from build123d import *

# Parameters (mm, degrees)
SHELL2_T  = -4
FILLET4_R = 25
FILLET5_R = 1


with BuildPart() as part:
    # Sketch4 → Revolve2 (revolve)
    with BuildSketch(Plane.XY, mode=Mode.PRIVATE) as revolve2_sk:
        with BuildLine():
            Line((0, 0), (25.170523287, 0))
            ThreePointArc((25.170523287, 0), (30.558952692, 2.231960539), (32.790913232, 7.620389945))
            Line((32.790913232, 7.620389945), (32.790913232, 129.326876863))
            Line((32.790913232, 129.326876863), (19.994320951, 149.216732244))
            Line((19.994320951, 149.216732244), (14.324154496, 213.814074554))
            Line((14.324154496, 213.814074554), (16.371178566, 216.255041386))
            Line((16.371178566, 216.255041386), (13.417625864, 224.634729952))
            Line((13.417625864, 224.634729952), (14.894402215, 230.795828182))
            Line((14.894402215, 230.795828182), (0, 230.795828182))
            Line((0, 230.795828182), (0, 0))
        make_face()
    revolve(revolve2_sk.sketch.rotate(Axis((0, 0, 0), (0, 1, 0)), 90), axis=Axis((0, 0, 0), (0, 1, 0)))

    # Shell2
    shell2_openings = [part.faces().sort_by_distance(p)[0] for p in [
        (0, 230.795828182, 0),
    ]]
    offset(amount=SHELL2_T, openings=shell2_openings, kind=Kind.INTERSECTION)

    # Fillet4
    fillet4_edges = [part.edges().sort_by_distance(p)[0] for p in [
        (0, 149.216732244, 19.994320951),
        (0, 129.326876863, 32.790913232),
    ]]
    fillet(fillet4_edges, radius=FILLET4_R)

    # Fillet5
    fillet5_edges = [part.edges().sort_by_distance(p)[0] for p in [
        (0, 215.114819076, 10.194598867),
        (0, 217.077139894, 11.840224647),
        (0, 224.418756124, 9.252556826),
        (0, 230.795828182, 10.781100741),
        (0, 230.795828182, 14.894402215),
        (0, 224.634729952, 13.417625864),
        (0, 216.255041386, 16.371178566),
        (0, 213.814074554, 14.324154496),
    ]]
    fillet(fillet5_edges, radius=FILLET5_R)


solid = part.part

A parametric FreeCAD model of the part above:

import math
import FreeCAD as App
import Part
import Sketcher
from FreeCAD import Vector
Q = App.Units.Quantity


def edges_at(feature, points):
    """Names of the edges that pass closest to the given points."""
    edges = feature.Shape.Edges
    near = lambda p: min(range(len(edges)), key=lambda i: edges[i].distToShape(Part.Vertex(*p))[0])
    return sorted({f"Edge{near(p) + 1}" for p in points})


def faces_at(feature, points):
    """Names of the faces that lie closest to the given points."""
    faces = feature.Shape.Faces
    near = lambda p: min(range(len(faces)), key=lambda i: faces[i].distToShape(Part.Vertex(*p))[0])
    return sorted({f"Face{near(p) + 1}" for p in points})

doc = App.newDocument("Part")
params = doc.addObject("Spreadsheet::Sheet", "Params")
for row, (alias, value) in enumerate([
    ("revolution_angle", "360 deg"),
    ("thickness_wall", "4 mm"),
    ("fillet_radius", "25 mm"),
    ("fillet2_radius", "1 mm"),
], start=1):
    params.set(f"A{row}", alias)
    params.set(f"B{row}", "=" + value)
    params.setAlias(f"B{row}", alias)

body = doc.addObject("PartDesign::Body", "Body")

sketch1 = doc.addObject("Sketcher::SketchObject", "Sketch")
body.addObject(sketch1)
sketch1.AttachmentSupport = (doc.XY_Plane, [""])
sketch1.MapMode = "FlatFace"
sketch1.addGeometry([
    Part.LineSegment(Vector(0, 0, 0), Vector(25.170523, 0, 0)),
    Part.ArcOfCircle(Part.Circle(Vector(25.170523, 7.62039, 0), Vector(0, 0, 1), 7.62039), math.radians(-90), math.radians(0)),
    Part.LineSegment(Vector(32.790913, 7.62039, 0), Vector(32.790913, 129.326877, 0)),
    Part.LineSegment(Vector(32.790913, 129.326877, 0), Vector(19.994321, 149.216732, 0)),
    Part.LineSegment(Vector(19.994321, 149.216732, 0), Vector(14.324154, 213.814075, 0)),
    Part.LineSegment(Vector(14.324154, 213.814075, 0), Vector(16.371179, 216.255041, 0)),
    Part.LineSegment(Vector(16.371179, 216.255041, 0), Vector(13.417626, 224.63473, 0)),
    Part.LineSegment(Vector(13.417626, 224.63473, 0), Vector(14.894402, 230.795828, 0)),
    Part.LineSegment(Vector(14.894402, 230.795828, 0), Vector(0, 230.795828, 0)),
    Part.LineSegment(Vector(0, 230.795828, 0), Vector(0, 0, 0)),
], False)
sketch1.addConstraint([
    Sketcher.Constraint("Tangent", 0, 2, 1, 1),
    Sketcher.Constraint("Tangent", 1, 2, 2, 1),
    Sketcher.Constraint("Coincident", 2, 2, 3, 1),
    Sketcher.Constraint("Coincident", 3, 2, 4, 1),
    Sketcher.Constraint("Coincident", 4, 2, 5, 1),
    Sketcher.Constraint("Coincident", 5, 2, 6, 1),
    Sketcher.Constraint("Coincident", 6, 2, 7, 1),
    Sketcher.Constraint("Coincident", 7, 2, 8, 1),
    Sketcher.Constraint("Coincident", 8, 2, 9, 1),
    Sketcher.Constraint("Coincident", 9, 2, 0, 1),
    Sketcher.Constraint("Horizontal", 0),
    Sketcher.Constraint("Vertical", 2),
    Sketcher.Constraint("Horizontal", 8),
    Sketcher.Constraint("Vertical", 9),
    Sketcher.Constraint("Coincident", 9, 2, -1, 1),
    Sketcher.Constraint("Radius", 1, Q("7.62039 mm")),
    Sketcher.Constraint("DistanceY", 9, 2, 9, 1, Q("230.795828 mm")),
    Sketcher.Constraint("DistanceY", 6, 2, 7, 2, Q("6.161098 mm")),
    Sketcher.Constraint("Distance", 4, Q("64.84572 mm")),
    Sketcher.Constraint("Distance", 5, Q("3.185691 mm")),
    Sketcher.Constraint("DistanceX", 0, 1, 0, 2, Q("25.170523 mm")),
    Sketcher.Constraint("DistanceX", 8, 2, 8, 1, Q("14.894402 mm")),
    Sketcher.Constraint("DistanceY", 2, 1, 2, 2, Q("121.706487 mm")),
    Sketcher.Constraint("DistanceX", -1, 1, 3, 2, Q("19.994321 mm")),
    Sketcher.Constraint("DistanceX", -1, 1, 5, 2, Q("16.371179 mm")),
    Sketcher.Constraint("DistanceY", -1, 1, 5, 2, Q("216.255041 mm")),
    Sketcher.Constraint("DistanceX", 4, 2, 2, 2, Q("18.466759 mm")),
    Sketcher.Constraint("DistanceX", 6, 2, 4, 2, Q("0.906529 mm")),
])
revolution = doc.addObject("PartDesign::Revolution", "Revolution")
body.addObject(revolution)
revolution.Profile = sketch1
revolution.ReferenceAxis = (sketch1, ["V_Axis"])
revolution.setExpression("Angle", "Params.revolution_angle")
doc.recompute()

thickness = doc.addObject("PartDesign::Thickness", "Thickness")
body.addObject(thickness)
thickness.Base = (revolution, faces_at(revolution, [(0, 230.796, 0)]))
thickness.setExpression("Value", "Params.thickness_wall")
thickness.Reversed = True
thickness.Join = "Intersection"
doc.recompute()

fillet = doc.addObject("PartDesign::Fillet", "Fillet")
body.addObject(fillet)
fillet.Base = (thickness, edges_at(thickness, [(0, 149.217, 19.994), (0, 129.327, 32.791)]))
fillet.setExpression("Radius", "Params.fillet_radius")
doc.recompute()

fillet2 = doc.addObject("PartDesign::Fillet", "Fillet001")
body.addObject(fillet2)
fillet2.Base = (fillet, edges_at(fillet, [
    (0, 215.115, 10.195),
    (0, 217.077, 11.84),
    (0, 224.419, 9.253),
    (0, 230.796, 10.781),
    (0, 230.796, 14.894),
    (0, 224.635, 13.418),
    (0, 216.255, 16.371),
    (0, 213.814, 14.324),
]))
fillet2.setExpression("Radius", "Params.fillet2_radius")

doc.recompute()
